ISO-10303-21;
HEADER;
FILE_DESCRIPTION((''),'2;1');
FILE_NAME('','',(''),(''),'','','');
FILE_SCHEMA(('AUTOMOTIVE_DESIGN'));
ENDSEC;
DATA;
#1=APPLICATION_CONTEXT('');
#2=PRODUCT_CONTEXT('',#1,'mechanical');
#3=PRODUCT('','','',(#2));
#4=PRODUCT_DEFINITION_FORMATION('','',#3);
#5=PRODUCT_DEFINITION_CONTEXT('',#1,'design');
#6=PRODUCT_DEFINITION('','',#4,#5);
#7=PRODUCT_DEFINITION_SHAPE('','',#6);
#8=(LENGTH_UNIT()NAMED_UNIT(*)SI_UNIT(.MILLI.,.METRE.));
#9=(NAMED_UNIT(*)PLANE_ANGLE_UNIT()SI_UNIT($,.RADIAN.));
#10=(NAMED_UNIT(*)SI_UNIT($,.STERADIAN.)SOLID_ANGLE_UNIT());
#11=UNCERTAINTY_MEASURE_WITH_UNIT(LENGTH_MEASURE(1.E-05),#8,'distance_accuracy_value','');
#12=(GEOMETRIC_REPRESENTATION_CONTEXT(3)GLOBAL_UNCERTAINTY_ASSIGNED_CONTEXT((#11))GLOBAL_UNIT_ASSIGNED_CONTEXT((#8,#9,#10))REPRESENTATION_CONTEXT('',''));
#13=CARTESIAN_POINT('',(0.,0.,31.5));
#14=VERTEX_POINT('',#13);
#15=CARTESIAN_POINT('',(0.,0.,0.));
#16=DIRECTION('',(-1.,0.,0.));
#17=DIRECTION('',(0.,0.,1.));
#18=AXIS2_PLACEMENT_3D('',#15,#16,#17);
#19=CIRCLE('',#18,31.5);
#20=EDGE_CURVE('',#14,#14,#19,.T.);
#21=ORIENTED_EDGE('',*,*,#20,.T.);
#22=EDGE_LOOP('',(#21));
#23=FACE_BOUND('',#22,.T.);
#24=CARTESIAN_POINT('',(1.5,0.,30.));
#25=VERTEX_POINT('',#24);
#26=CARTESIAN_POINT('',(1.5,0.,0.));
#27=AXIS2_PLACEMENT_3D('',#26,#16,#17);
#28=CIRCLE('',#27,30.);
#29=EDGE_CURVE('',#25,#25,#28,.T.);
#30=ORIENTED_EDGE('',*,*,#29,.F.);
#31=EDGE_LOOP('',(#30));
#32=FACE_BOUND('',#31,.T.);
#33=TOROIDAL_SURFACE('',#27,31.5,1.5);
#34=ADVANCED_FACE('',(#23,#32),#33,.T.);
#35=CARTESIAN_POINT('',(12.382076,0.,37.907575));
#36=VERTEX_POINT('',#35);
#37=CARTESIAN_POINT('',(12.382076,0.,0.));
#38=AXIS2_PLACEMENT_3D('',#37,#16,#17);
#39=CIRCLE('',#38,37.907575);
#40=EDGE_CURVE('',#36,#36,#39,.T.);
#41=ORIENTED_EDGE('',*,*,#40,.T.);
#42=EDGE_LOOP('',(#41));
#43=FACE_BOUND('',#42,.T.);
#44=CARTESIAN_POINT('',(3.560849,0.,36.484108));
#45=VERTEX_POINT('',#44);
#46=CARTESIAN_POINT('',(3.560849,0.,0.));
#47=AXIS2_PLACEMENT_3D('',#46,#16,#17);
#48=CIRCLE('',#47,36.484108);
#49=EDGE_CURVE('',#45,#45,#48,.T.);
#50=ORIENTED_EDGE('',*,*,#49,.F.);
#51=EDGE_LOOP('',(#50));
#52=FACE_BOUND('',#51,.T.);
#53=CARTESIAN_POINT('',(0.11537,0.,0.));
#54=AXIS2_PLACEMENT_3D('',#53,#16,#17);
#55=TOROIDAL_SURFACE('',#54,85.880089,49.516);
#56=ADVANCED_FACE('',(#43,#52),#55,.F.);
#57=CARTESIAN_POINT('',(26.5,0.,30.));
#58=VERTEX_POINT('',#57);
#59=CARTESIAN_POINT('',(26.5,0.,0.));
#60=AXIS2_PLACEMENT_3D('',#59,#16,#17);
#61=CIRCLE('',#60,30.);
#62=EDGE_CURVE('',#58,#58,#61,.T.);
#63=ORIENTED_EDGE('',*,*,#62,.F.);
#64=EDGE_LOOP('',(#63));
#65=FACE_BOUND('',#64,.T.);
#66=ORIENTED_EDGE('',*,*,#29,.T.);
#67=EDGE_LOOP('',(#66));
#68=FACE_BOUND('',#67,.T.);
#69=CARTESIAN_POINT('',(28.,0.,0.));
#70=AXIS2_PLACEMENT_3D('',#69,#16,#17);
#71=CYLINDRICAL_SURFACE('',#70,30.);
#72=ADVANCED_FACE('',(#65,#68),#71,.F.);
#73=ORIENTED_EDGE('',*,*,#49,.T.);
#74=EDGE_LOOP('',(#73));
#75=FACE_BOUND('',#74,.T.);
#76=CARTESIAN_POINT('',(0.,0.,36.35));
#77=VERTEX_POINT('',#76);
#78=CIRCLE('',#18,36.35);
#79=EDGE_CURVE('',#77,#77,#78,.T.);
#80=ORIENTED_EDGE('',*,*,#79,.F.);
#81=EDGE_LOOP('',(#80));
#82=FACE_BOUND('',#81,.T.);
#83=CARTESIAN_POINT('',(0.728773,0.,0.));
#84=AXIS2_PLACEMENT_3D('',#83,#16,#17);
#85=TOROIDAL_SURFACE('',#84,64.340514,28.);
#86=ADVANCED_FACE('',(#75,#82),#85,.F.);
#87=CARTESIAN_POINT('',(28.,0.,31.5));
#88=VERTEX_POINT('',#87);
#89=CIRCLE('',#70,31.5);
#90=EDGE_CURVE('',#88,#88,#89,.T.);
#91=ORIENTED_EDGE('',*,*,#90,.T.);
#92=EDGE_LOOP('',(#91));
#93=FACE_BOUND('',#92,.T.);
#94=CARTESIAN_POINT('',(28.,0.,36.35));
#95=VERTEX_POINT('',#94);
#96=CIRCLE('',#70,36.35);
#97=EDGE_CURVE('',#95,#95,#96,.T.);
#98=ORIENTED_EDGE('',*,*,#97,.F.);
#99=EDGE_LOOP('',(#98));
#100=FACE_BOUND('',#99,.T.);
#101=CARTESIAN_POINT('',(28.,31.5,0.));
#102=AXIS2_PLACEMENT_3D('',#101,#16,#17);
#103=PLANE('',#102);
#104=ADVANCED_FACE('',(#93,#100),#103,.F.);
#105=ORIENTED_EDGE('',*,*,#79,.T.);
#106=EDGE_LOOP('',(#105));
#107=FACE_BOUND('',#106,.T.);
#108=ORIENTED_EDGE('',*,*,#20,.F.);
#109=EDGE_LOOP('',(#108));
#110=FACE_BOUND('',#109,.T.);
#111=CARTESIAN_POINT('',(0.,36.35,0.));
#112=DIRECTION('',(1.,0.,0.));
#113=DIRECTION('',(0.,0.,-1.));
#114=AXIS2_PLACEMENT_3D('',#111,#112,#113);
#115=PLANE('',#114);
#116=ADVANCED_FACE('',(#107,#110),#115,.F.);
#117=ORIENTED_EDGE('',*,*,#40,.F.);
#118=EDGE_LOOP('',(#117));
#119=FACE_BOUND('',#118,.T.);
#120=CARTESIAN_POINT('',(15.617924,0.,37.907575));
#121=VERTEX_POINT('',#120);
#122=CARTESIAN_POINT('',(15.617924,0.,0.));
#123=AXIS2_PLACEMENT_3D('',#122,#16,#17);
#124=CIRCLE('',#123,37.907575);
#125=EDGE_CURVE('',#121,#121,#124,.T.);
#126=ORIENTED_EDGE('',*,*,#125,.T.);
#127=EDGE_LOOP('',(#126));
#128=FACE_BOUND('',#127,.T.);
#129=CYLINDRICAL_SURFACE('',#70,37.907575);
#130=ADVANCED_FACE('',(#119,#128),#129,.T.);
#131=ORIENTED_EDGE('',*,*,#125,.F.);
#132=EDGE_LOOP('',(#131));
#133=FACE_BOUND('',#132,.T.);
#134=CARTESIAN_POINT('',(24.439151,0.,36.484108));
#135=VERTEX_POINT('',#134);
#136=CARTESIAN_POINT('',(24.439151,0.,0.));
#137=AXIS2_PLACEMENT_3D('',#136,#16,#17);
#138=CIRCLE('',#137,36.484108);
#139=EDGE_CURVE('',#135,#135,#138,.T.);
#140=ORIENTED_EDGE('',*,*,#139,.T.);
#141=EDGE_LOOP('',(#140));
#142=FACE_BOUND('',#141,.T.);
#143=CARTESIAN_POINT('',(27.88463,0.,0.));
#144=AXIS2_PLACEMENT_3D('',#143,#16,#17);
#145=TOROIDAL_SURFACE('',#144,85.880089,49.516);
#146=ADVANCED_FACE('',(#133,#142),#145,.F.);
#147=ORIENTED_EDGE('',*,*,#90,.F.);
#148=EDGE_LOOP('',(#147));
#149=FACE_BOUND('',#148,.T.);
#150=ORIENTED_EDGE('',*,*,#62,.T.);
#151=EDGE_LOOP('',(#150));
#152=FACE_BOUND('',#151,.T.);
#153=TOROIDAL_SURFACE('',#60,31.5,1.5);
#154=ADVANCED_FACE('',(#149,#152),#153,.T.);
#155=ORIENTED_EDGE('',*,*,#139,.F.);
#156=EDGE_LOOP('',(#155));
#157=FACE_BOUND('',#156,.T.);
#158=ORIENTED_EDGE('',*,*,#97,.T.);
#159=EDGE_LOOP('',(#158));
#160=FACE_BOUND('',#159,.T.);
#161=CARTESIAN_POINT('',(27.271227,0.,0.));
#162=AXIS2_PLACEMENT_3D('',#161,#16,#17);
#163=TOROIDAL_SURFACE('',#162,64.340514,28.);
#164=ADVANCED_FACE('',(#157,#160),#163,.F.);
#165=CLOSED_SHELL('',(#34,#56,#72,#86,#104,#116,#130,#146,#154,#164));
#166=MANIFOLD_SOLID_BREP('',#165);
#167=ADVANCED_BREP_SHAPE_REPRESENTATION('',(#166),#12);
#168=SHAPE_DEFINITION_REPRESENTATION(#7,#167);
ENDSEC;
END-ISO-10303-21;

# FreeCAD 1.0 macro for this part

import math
import FreeCAD as App
import Part
import Sketcher
from FreeCAD import Vector

doc = App.newDocument("Part")
body = doc.addObject("PartDesign::Body", "Body")

# Sketch on XY plane
sketch1 = doc.addObject("Sketcher::SketchObject", "Sketch")
body.addObject(sketch1)
sketch1.AttachmentSupport = (doc.XY_Plane, [""])
sketch1.MapMode = "FlatFace"
sketch1.addGeometry([
    Part.LineSegment(Vector(1.5, 30, 0), Vector(26.5, 30, 0)),  # 0
    Part.ArcOfCircle(Part.Circle(Vector(26.5, 31.5, 0), Vector(0, 0, 1), 1.5), math.radians(-90), math.radians(0)),  # 1
    Part.LineSegment(Vector(28, 31.5, 0), Vector(28, 36.4, 0)),  # 2
    Part.ArcOfCircle(Part.Circle(Vector(27.3, 64.3, 0), Vector(0, 0, 1), 28), math.radians(-95.81), math.radians(-88.51)),  # 3
    Part.ArcOfCircle(Part.Circle(Vector(27.9, 85.9, 0), Vector(0, 0, 1), 49.5), math.radians(-104.34), math.radians(-93.99)),  # 4
    Part.LineSegment(Vector(15.6, 37.9, 0), Vector(12.4, 37.9, 0)),  # 5
    Part.ArcOfCircle(Part.Circle(Vector(0.1, 85.9, 0), Vector(0, 0, 1), 49.5), math.radians(-86.01), math.radians(-75.66)),  # 6
    Part.ArcOfCircle(Part.Circle(Vector(0.7, 64.3, 0), Vector(0, 0, 1), 28), math.radians(-91.49), math.radians(-84.19)),  # 7
    Part.LineSegment(Vector(0, 36.4, 0), Vector(0, 31.5, 0)),  # 8
    Part.ArcOfCircle(Part.Circle(Vector(1.5, 31.5, 0), Vector(0, 0, 1), 1.5), math.radians(180), math.radians(270)),  # 9
], False)
sketch1.addConstraint([
    Sketcher.Constraint("Tangent", 0, 2, 1, 1),
    Sketcher.Constraint("Tangent", 1, 2, 2, 1),
    Sketcher.Constraint("Coincident", 2, 2, 3, 2),
    Sketcher.Constraint("Coincident", 3, 1, 4, 2),
    Sketcher.Constraint("Coincident", 4, 1, 5, 1),
    Sketcher.Constraint("Coincident", 5, 2, 6, 2),
    Sketcher.Constraint("Coincident", 6, 1, 7, 2),
    Sketcher.Constraint("Coincident", 7, 1, 8, 1),
    Sketcher.Constraint("Tangent", 8, 2, 9, 1),
    Sketcher.Constraint("Tangent", 9, 2, 0, 1),
    Sketcher.Constraint("Horizontal", 0),
    Sketcher.Constraint("Vertical", 2),
    Sketcher.Constraint("Horizontal", 5),
    Sketcher.Constraint("Vertical", 8),
    Sketcher.Constraint("Equal", 4, 6),
    Sketcher.Constraint("Equal", 3, 7),
    Sketcher.Constraint("Equal", 1, 9),
    Sketcher.Constraint("PointOnObject", 7, 1, -2),
    Sketcher.Constraint("Horizontal", 4, 3, 6, 3),
    Sketcher.Constraint("Horizontal", 3, 3, 7, 3),
    Sketcher.Constraint("Horizontal", 3, 1, 6, 1),
    Sketcher.Constraint("Horizontal", 2, 2, 7, 1),
    Sketcher.Constraint("Radius", 3, 28.0),
    Sketcher.Constraint("Radius", 1, 1.5),
    Sketcher.Constraint("DistanceX", 0, 1, 0, 2, 25.0),
    Sketcher.Constraint("DistanceY", -1, 1, 0, 2, 30.0),
    Sketcher.Constraint("Radius", 4, 49.516),
    Sketcher.Constraint("DistanceY", 2, 1, 2, 2, 4.85),
    Sketcher.Constraint("DistanceX", 5, 2, 5, 1, 3.235848),
    Sketcher.Constraint("DistanceX", -1, 1, 4, 3, 27.88463),
    Sketcher.Constraint("DistanceY", -1, 1, 4, 3, 85.880089),
    Sketcher.Constraint("DistanceX", -1, 1, 3, 1, 24.439151),
])
revolution = doc.addObject("PartDesign::Revolution", "Revolution")
body.addObject(revolution)
revolution.Profile = sketch1
revolution.ReferenceAxis = (sketch1, ["H_Axis"])
revolution.Angle = 360

doc.recompute()
